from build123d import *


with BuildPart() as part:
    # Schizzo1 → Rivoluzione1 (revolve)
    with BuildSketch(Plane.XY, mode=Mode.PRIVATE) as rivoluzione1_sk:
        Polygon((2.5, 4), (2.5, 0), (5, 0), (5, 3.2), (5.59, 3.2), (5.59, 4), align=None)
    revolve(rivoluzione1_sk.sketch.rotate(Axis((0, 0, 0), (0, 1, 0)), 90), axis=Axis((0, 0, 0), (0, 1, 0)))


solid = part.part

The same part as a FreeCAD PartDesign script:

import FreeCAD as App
import Part
import Sketcher

V = App.Vector

doc = App.newDocument("Part")
body = doc.addObject("PartDesign::Body", "Body")

# Sketch on XY plane
sketch1 = body.newObject("Sketcher::SketchObject", "Sketch")
sketch1.AttachmentSupport = (doc.getObject("XY_Plane"), [""])
sketch1.MapMode = "FlatFace"
sketch1.addGeometry(Part.LineSegment(V(2.5, 4, 0), V(2.5, 0, 0)), False)
sketch1.addGeometry(Part.LineSegment(V(2.5, 0, 0), V(5, 0, 0)), False)
sketch1.addGeometry(Part.LineSegment(V(5, 0, 0), V(5, 3.2, 0)), False)
sketch1.addGeometry(Part.LineSegment(V(5, 3.2, 0), V(5.6, 3.2, 0)), False)
sketch1.addGeometry(Part.LineSegment(V(5.6, 3.2, 0), V(5.6, 4, 0)), False)
sketch1.addGeometry(Part.LineSegment(V(5.6, 4, 0), V(2.5, 4, 0)), False)
sketch1.addConstraint(Sketcher.Constraint("Coincident", 0, 2, 1, 1))
sketch1.addConstraint(Sketcher.Constraint("Coincident", 1, 2, 2, 1))
sketch1.addConstraint(Sketcher.Constraint("Coincident", 2, 2, 3, 1))
sketch1.addConstraint(Sketcher.Constraint("Coincident", 3, 2, 4, 1))
sketch1.addConstraint(Sketcher.Constraint("Coincident", 4, 2, 5, 1))
sketch1.addConstraint(Sketcher.Constraint("Coincident", 5, 2, 0, 1))
sketch1.addConstraint(Sketcher.Constraint("Vertical", 0))
sketch1.addConstraint(Sketcher.Constraint("Horizontal", 1))
sketch1.addConstraint(Sketcher.Constraint("Vertical", 2))
sketch1.addConstraint(Sketcher.Constraint("Horizontal", 3))
sketch1.addConstraint(Sketcher.Constraint("Vertical", 4))
sketch1.addConstraint(Sketcher.Constraint("Horizontal", 5))
sketch1.addConstraint(Sketcher.Constraint("PointOnObject", 0, 2, -1))
sketch1.addConstraint(Sketcher.Constraint("DistanceY", 0, 2, 0, 1, 4.0))
sketch1.addConstraint(Sketcher.Constraint("DistanceX", 1, 1, 1, 2, 2.5))
sketch1.addConstraint(Sketcher.Constraint("DistanceY", 2, 1, 2, 2, 3.2))
sketch1.addConstraint(Sketcher.Constraint("DistanceX", -1, 1, 1, 2, 5.0))
sketch1.addConstraint(Sketcher.Constraint("DistanceX", 3, 1, 3, 2, 0.59))
revolution = body.newObject("PartDesign::Revolution", "Revolution")
revolution.Profile = sketch1
revolution.ReferenceAxis = (sketch1, ["V_Axis"])
revolution.Angle = 360

doc.recompute()
